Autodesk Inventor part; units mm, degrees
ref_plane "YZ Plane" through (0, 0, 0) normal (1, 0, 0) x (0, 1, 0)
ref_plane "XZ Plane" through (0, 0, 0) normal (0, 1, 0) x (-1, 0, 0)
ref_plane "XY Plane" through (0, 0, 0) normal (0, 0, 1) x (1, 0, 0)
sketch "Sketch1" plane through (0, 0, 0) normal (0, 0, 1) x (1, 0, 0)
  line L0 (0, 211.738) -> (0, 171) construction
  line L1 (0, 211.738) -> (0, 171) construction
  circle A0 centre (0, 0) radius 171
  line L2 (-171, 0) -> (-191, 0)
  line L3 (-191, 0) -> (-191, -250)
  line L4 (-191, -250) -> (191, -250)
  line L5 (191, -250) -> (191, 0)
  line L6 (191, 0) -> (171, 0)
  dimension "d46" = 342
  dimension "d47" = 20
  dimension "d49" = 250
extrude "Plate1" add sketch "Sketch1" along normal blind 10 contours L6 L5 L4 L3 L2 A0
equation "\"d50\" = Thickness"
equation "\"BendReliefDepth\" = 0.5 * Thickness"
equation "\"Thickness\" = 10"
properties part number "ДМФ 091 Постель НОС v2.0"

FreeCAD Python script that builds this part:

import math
import FreeCAD as App
import Part
import Sketcher
Q = App.Units.Quantity

doc = App.newDocument("Part")
body = doc.addObject("PartDesign::Body", "Body")

sketch1 = body.newObject("Sketcher::SketchObject", "Sketch")
sketch1.AttachmentSupport = (doc.getObject("XY_Plane"), [""])
sketch1.MapMode = "FlatFace"
sketch1.addGeometry([
    Part.LineSegment(App.Vector(191, 0, 0), App.Vector(171, 0, 0)),
    Part.ArcOfCircle(Part.Circle(App.Vector(0, 0, 0), App.Vector(0, 0, 1), 171), math.radians(180), math.radians(360)),
    Part.LineSegment(App.Vector(-171, 0, 0), App.Vector(-191, 0, 0)),
    Part.LineSegment(App.Vector(-191, 0, 0), App.Vector(-191, -250, 0)),
    Part.LineSegment(App.Vector(-191, -250, 0), App.Vector(191, -250, 0)),
    Part.LineSegment(App.Vector(191, -250, 0), App.Vector(191, 0, 0)),
], False)
sketch1.addConstraint([
    Sketcher.Constraint("Coincident", 0, 2, 1, 2),
    Sketcher.Constraint("Coincident", 1, 1, 2, 1),
    Sketcher.Constraint("Coincident", 2, 2, 3, 1),
    Sketcher.Constraint("Coincident", 3, 2, 4, 1),
    Sketcher.Constraint("Coincident", 4, 2, 5, 1),
    Sketcher.Constraint("Coincident", 5, 2, 0, 1),
    Sketcher.Constraint("Horizontal", 0),
    Sketcher.Constraint("Horizontal", 2),
    Sketcher.Constraint("Vertical", 3),
    Sketcher.Constraint("Horizontal", 4),
    Sketcher.Constraint("Vertical", 5),
    Sketcher.Constraint("Coincident", 1, 3, -1, 1),
    Sketcher.Constraint("Symmetric", 2, 2, 5, 2, -1, 1),
    Sketcher.Constraint("PointOnObject", 0, 2, -1),
    Sketcher.Constraint("Radius", 1, Q("171 mm")),
    Sketcher.Constraint("DistanceX", 0, 2, 0, 1, Q("20 mm")),
    Sketcher.Constraint("DistanceY", 3, 2, 3, 1, Q("250 mm")),
])
pad1 = body.newObject("PartDesign::Pad", "Pad")
pad1.Profile = sketch1
pad1.Length = 10

doc.recompute()
